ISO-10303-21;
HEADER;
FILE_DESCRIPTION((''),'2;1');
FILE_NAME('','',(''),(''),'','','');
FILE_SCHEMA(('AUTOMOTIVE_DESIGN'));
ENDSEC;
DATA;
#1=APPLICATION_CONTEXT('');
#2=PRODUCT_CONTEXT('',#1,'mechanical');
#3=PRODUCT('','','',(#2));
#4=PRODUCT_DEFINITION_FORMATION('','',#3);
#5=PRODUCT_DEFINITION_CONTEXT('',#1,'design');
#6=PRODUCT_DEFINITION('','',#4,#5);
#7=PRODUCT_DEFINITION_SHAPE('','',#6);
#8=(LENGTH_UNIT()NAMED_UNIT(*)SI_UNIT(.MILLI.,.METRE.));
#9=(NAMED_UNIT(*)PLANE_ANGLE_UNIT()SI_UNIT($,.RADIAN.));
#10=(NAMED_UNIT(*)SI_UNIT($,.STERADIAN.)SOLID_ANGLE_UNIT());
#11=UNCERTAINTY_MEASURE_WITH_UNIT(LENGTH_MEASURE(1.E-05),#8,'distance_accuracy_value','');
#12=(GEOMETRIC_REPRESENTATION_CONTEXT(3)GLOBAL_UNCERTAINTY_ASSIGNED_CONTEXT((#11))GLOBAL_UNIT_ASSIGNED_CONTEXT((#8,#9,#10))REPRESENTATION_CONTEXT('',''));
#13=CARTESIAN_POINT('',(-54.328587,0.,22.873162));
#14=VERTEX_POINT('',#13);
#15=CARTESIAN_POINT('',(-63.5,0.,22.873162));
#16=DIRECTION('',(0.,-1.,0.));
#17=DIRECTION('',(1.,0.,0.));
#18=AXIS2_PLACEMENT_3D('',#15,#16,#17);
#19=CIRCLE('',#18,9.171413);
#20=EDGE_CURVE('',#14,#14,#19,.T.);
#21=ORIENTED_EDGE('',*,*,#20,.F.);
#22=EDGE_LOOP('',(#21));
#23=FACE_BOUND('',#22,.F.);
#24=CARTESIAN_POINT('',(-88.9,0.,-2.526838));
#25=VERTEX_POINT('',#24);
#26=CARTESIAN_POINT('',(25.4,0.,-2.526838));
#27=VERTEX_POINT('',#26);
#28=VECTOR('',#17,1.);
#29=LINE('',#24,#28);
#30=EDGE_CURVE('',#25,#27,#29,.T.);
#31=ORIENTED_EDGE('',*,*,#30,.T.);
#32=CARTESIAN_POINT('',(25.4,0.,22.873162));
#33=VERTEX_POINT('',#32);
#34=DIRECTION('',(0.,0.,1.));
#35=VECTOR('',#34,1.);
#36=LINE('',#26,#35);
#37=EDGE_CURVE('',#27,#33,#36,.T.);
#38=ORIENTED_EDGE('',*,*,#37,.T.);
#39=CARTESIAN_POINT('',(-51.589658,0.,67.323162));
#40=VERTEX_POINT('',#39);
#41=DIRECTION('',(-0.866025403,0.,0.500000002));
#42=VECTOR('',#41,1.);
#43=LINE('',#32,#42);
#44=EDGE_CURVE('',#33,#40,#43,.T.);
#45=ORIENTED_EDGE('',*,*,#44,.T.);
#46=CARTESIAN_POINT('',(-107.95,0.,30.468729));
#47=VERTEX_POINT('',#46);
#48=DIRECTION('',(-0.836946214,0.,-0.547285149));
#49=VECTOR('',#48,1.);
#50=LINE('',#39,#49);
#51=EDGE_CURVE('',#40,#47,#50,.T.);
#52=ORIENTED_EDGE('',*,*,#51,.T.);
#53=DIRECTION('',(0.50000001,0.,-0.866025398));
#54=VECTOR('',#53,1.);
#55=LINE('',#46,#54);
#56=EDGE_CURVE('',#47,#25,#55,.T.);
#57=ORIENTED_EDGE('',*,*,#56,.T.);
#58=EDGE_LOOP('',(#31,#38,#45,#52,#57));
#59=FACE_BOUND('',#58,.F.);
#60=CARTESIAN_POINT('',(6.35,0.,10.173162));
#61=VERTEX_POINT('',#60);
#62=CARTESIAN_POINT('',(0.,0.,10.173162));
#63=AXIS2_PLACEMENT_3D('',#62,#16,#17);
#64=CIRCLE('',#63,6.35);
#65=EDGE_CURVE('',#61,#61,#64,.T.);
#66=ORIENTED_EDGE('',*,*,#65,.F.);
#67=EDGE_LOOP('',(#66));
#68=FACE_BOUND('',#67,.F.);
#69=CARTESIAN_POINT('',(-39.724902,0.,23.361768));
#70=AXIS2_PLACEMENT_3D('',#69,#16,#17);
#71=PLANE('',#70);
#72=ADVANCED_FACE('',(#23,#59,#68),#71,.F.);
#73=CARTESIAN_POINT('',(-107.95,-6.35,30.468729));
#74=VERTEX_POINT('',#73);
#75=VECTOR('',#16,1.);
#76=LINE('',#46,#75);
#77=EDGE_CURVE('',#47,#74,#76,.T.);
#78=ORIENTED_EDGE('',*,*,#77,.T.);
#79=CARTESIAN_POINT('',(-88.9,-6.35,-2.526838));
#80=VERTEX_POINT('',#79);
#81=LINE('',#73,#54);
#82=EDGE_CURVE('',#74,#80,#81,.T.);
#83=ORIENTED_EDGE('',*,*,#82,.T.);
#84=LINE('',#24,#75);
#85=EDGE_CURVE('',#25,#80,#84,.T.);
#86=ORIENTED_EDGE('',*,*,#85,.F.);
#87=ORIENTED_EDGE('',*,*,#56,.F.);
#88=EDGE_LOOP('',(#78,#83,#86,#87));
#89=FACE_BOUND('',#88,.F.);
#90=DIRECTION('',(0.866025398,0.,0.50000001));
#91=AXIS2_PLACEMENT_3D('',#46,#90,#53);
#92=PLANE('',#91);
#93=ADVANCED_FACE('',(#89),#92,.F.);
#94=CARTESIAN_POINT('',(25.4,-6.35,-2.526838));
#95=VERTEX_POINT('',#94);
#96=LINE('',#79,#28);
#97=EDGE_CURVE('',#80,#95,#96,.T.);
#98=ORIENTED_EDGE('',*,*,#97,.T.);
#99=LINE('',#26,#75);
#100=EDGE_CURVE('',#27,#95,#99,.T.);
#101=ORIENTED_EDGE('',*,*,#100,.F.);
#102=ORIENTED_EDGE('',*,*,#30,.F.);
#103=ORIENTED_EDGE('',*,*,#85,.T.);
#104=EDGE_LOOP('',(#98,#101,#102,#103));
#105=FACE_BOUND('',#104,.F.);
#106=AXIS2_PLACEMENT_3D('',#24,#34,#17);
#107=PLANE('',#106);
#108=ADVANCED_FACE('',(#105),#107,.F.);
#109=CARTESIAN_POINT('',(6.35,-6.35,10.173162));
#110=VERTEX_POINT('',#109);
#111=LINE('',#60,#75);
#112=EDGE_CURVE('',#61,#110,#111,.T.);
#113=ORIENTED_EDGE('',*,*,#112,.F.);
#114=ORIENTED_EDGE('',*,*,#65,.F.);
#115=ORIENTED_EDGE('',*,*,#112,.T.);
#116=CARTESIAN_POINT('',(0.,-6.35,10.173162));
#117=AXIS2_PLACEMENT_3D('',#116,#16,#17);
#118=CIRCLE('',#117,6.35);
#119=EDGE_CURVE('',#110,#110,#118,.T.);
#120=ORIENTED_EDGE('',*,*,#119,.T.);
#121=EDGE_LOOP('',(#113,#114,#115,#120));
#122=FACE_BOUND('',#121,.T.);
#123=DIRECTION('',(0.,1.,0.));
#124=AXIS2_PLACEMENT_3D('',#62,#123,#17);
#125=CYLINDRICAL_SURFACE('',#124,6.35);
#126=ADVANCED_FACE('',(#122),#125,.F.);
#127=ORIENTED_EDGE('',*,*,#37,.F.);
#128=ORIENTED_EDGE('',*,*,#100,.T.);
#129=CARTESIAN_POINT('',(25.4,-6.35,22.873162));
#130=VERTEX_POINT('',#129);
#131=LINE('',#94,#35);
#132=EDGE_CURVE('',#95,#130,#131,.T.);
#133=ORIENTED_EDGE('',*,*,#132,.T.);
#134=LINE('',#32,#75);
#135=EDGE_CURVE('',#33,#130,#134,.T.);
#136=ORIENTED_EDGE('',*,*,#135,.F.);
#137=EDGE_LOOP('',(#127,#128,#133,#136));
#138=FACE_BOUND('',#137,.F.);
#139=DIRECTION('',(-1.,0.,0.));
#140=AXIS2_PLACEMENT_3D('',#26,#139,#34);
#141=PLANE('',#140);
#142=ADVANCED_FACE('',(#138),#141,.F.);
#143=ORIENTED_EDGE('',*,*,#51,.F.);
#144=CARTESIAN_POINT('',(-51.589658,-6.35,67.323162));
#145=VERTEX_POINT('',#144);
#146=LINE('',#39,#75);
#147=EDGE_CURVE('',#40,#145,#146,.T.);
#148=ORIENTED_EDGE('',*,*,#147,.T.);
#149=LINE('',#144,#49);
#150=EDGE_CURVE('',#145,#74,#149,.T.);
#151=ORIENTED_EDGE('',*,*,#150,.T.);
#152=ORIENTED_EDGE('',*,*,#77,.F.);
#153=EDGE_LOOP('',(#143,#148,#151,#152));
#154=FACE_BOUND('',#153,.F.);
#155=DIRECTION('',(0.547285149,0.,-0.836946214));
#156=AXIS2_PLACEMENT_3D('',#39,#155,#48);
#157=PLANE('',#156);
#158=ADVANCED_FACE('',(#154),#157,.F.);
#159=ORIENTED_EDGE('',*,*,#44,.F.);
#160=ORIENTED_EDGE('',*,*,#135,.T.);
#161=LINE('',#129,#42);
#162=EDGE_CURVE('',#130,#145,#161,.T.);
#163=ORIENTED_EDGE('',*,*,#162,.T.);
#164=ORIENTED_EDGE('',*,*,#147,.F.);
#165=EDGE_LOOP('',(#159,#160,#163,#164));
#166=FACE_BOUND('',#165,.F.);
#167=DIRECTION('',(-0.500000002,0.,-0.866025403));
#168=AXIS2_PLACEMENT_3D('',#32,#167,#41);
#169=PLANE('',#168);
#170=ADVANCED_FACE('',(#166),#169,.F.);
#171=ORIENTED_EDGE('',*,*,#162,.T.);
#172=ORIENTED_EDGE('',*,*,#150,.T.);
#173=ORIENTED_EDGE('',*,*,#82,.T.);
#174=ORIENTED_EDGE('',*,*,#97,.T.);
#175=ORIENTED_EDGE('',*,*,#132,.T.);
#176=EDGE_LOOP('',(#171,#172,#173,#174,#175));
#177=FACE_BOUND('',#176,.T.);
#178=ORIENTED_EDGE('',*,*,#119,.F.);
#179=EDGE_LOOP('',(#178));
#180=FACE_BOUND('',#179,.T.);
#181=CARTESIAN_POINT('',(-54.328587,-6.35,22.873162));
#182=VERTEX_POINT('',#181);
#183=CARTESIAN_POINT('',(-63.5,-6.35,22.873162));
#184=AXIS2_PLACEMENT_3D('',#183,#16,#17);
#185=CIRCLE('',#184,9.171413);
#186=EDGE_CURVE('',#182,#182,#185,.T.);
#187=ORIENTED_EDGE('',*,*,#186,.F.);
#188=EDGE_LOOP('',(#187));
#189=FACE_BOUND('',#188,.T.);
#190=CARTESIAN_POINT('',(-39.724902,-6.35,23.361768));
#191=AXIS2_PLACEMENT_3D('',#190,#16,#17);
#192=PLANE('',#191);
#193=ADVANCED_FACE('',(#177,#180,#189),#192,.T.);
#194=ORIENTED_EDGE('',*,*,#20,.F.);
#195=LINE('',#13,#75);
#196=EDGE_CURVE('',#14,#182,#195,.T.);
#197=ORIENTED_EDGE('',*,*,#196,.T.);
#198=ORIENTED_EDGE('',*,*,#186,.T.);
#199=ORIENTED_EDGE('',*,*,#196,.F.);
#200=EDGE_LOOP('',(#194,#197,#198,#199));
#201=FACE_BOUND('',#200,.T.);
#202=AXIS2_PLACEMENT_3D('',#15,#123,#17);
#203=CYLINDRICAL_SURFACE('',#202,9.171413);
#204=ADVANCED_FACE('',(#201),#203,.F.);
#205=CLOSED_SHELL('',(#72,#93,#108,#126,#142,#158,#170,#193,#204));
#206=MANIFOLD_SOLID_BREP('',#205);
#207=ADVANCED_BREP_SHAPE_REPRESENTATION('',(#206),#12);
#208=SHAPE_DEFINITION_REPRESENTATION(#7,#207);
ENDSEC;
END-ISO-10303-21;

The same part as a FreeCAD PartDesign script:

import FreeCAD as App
import Part
import Sketcher

V = App.Vector
Q = App.Units.Quantity


def add_polygon(sketch, points):
    """Adds a closed chain of lines whose ends are joined by coincident constraints."""
    first, n = sketch.GeometryCount, len(points)
    for a, b in zip(points, points[1:] + points[:1]):
        sketch.addGeometry(Part.LineSegment(App.Vector(*a, 0), App.Vector(*b, 0)), False)
    for i in range(n):
        sketch.addConstraint(Sketcher.Constraint("Coincident", first + i, 2, first + (i + 1) % n, 1))

doc = App.newDocument("Part")
body = doc.addObject("PartDesign::Body", "Body")

sketch1 = body.newObject("Sketcher::SketchObject", "Sketch")
sketch1.AttachmentSupport = (doc.getObject("XZ_Plane"), [""])
sketch1.MapMode = "FlatFace"
add_polygon(sketch1, [(-108, 30), (-89, -3), (25, -3), (25, 23), (-52, 67)])
sketch1.addGeometry(Part.Circle(V(0, 10, 0), V(0, 0, 1), 6), False)
sketch1.addGeometry(Part.Circle(V(-64, 23, 0), V(0, 0, 1), 9), False)
sketch1.addConstraint([
    Sketcher.Constraint("Horizontal", 1),
    Sketcher.Constraint("Vertical", 2),
    Sketcher.Constraint("PointOnObject", 5, 3, -2),
    Sketcher.Constraint("Horizontal", 6, 3, 2, 2),
    Sketcher.Constraint("Diameter", 5, Q("0.5 in")),
    Sketcher.Constraint("DistanceY", 2, 1, 2, 2, Q("1 in")),
    Sketcher.Constraint("DistanceX", 1, 1, 1, 2, Q("4.5 in")),
    Sketcher.Constraint("DistanceX", -1, 1, 1, 2, Q("1 in")),
    Sketcher.Constraint("Angle", 0, Q("-59.999999 deg")),
    Sketcher.Constraint("Angle", 3, Q("150 deg")),
    Sketcher.Constraint("DistanceX", 0, 2, 6, 3, Q("1 in")),
    Sketcher.Constraint("Distance", 0, Q("1.5 in")),
    Sketcher.Constraint("Distance", 3, Q("3.5 in")),
    Sketcher.Constraint("DistanceY", 5, 3, 6, 3, Q("0.5 in")),
    Sketcher.Constraint("Diameter", 6, 18.342826),
    Sketcher.Constraint("DistanceY", 0, 2, -1, 1, 2.526838),
])
pad1 = body.newObject("PartDesign::Pad", "Pad")
pad1.Profile = sketch1
pad1.Length = Q("0.25 in")

doc.recompute()
